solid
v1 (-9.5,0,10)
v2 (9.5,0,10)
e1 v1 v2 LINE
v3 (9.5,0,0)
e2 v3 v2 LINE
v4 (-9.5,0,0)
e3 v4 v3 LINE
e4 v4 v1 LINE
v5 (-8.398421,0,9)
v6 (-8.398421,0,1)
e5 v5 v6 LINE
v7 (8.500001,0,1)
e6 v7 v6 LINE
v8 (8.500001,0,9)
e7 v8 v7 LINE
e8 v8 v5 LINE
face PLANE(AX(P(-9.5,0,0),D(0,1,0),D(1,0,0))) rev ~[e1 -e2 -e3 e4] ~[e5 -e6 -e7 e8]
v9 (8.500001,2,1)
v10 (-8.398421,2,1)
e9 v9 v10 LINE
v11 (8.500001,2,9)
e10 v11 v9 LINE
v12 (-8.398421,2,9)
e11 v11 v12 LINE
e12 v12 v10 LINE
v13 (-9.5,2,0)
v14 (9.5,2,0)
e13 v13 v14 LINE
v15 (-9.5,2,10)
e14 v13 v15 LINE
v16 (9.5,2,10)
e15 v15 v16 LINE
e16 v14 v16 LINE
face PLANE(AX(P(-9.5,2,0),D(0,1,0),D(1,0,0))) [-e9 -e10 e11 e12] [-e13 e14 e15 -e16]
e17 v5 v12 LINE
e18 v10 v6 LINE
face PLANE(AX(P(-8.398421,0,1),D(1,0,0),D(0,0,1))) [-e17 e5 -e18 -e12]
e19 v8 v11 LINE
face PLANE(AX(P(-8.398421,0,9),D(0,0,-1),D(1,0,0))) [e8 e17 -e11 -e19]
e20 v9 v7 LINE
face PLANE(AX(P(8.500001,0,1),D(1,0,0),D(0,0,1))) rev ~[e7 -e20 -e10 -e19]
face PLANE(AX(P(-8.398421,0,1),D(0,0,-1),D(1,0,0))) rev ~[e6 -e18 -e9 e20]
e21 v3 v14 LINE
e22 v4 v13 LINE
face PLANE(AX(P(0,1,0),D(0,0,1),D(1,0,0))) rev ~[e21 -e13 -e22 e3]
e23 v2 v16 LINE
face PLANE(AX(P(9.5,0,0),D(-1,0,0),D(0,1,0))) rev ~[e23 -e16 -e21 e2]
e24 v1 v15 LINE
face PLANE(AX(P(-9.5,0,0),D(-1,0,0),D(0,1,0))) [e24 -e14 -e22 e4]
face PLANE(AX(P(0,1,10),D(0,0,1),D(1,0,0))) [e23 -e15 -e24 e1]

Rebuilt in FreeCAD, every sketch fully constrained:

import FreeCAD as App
import Part
import Sketcher

doc = App.newDocument("Part")
body = doc.addObject("PartDesign::Body", "Body")

# Sketch on XZ plane
sketch1 = body.newObject("Sketcher::SketchObject", "Sketch")
sketch1.AttachmentSupport = (doc.getObject("XZ_Plane"), [""])
sketch1.MapMode = "FlatFace"
sketch1.addGeometry([
    Part.LineSegment(App.Vector(-8.398421, 9, 0), App.Vector(-8.398421, 1, 0)),
    Part.LineSegment(App.Vector(-8.398421, 1, 0), App.Vector(8.500001, 1, 0)),
    Part.LineSegment(App.Vector(8.500001, 1, 0), App.Vector(8.500001, 9, 0)),
    Part.LineSegment(App.Vector(8.500001, 9, 0), App.Vector(-8.398421, 9, 0)),
], False)
sketch1.addConstraint([
    Sketcher.Constraint("Coincident", 0, 2, 1, 1),
    Sketcher.Constraint("Coincident", 1, 2, 2, 1),
    Sketcher.Constraint("Coincident", 2, 2, 3, 1),
    Sketcher.Constraint("Coincident", 3, 2, 0, 1),
    Sketcher.Constraint("Vertical", 0),
    Sketcher.Constraint("Horizontal", 1),
    Sketcher.Constraint("Vertical", 2),
    Sketcher.Constraint("Horizontal", 3),
    Sketcher.Constraint("DistanceY", 0, 2, 0, 1, 8.0),
    Sketcher.Constraint("DistanceY", -1, 1, 0, 2, 1.0),
    Sketcher.Constraint("DistanceX", -1, 1, 1, 2, 8.500001),
    Sketcher.Constraint("DistanceX", 1, 1, 1, 2, 16.898421),
])
pad1 = body.newObject("PartDesign::Pad", "Pad")
pad1.Profile = sketch1
pad1.Length = 5
pad1.Midplane = True
body2 = doc.addObject("PartDesign::Body", "Body001")

# Sketch on XY plane
sketch2 = body2.newObject("Sketcher::SketchObject", "Sketch001")
sketch2.AttachmentSupport = (doc.getObject("XY_Plane001"), [""])
sketch2.MapMode = "FlatFace"
sketch2.addGeometry([
    Part.LineSegment(App.Vector(-9.5, 2, 0), App.Vector(-9.5, 0, 0)),
    Part.LineSegment(App.Vector(-9.5, 0, 0), App.Vector(9.5, 0, 0)),
    Part.LineSegment(App.Vector(9.5, 0, 0), App.Vector(9.5, 2, 0)),
    Part.LineSegment(App.Vector(9.5, 2, 0), App.Vector(-9.5, 2, 0)),
], False)
sketch2.addConstraint([
    Sketcher.Constraint("Coincident", 0, 2, 1, 1),
    Sketcher.Constraint("Coincident", 1, 2, 2, 1),
    Sketcher.Constraint("Coincident", 2, 2, 3, 1),
    Sketcher.Constraint("Coincident", 3, 2, 0, 1),
    Sketcher.Constraint("Vertical", 0),
    Sketcher.Constraint("Horizontal", 1),
    Sketcher.Constraint("Vertical", 2),
    Sketcher.Constraint("Horizontal", 3),
    Sketcher.Constraint("Symmetric", 0, 2, 1, 2, -1, 1),
    Sketcher.Constraint("DistanceX", 1, 1, 1, 2, 19.0),
    Sketcher.Constraint("DistanceY", 0, 2, 0, 1, 2.0),
])
pad2 = body2.newObject("PartDesign::Pad", "Pad001")
pad2.Profile = sketch2
pad2.Length = 10
doc.recompute()

boolean = body2.newObject("PartDesign::Boolean", "Boolean")
boolean.Type = "Cut"
boolean.addObjects([body])

doc.recompute()
